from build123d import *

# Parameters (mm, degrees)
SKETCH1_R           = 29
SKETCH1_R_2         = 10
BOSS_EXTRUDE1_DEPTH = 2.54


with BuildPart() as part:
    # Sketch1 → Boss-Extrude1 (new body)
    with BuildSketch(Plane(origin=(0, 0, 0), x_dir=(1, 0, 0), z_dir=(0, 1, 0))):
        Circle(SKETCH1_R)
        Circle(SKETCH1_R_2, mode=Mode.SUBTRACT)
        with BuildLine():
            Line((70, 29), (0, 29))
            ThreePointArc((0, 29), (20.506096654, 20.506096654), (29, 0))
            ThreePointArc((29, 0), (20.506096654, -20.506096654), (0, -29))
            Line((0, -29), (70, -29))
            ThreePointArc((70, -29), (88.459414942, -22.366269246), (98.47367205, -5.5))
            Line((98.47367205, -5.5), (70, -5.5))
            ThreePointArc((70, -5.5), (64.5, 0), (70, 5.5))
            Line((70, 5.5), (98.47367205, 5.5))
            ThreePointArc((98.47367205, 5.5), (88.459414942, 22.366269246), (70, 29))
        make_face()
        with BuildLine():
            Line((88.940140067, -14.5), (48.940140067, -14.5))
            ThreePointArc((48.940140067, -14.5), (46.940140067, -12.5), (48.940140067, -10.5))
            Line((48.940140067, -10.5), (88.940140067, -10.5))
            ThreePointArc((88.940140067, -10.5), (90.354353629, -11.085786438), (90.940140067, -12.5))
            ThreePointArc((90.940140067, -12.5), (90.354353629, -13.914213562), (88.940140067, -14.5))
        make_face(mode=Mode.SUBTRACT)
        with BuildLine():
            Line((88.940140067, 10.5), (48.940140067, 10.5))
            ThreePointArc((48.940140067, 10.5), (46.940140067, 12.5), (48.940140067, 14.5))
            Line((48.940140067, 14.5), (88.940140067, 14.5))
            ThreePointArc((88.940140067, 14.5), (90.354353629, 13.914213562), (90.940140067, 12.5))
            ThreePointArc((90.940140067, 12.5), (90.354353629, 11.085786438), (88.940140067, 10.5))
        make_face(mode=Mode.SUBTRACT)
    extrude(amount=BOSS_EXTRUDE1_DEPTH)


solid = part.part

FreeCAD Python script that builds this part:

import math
import FreeCAD as App
import Part
import Sketcher
from FreeCAD import Vector
Q = App.Units.Quantity

doc = App.newDocument("Part")
body = doc.addObject("PartDesign::Body", "Body")

# Sketch on XZ plane
sketch1 = body.newObject("Sketcher::SketchObject", "Sketch")
sketch1.AttachmentSupport = (doc.getObject("XZ_Plane"), [""])
sketch1.MapMode = "FlatFace"
sketch1.addGeometry([
    Part.ArcOfCircle(Part.Circle(Vector(0, 0, 0), Vector(0, 0, 1), 29), math.radians(90), math.radians(270)),  # 0
    Part.LineSegment(Vector(0, 29, 0), Vector(70, 29, 0)),  # 1
    Part.ArcOfCircle(Part.Circle(Vector(70, 0, 0), Vector(0, 0, 1), 29), math.radians(10.932661), math.radians(90)),  # 2
    Part.LineSegment(Vector(98.473672, 5.5, 0), Vector(70, 5.5, 0)),  # 3
    Part.ArcOfCircle(Part.Circle(Vector(70, 0, 0), Vector(0, 0, 1), 5.5), math.radians(90), math.radians(270)),  # 4
    Part.LineSegment(Vector(70, -5.5, 0), Vector(98.473672, -5.5, 0)),  # 5
    Part.ArcOfCircle(Part.Circle(Vector(70, 0, 0), Vector(0, 0, 1), 29), math.radians(-90), math.radians(-10.932661)),  # 6
    Part.LineSegment(Vector(70, -29, 0), Vector(0, -29, 0)),  # 7
    Part.ArcOfCircle(Part.Circle(Vector(88.94014, 12.5, 0), Vector(0, 0, 1), 2), math.radians(0), math.radians(90)),  # 8
    Part.LineSegment(Vector(88.94014, 14.5, 0), Vector(48.94014, 14.5, 0)),  # 9
    Part.ArcOfCircle(Part.Circle(Vector(48.94014, 12.5, 0), Vector(0, 0, 1), 2), math.radians(90), math.radians(270)),  # 10
    Part.LineSegment(Vector(48.94014, 10.5, 0), Vector(88.94014, 10.5, 0)),  # 11
    Part.ArcOfCircle(Part.Circle(Vector(88.94014, 12.5, 0), Vector(0, 0, 1), 2), math.radians(-90), math.radians(0)),  # 12
    Part.Circle(Vector(0, 0, 0), Vector(0, 0, 1), 10),  # 13
    Part.ArcOfCircle(Part.Circle(Vector(88.94014, -12.5, 0), Vector(0, 0, 1), 2), math.radians(0), math.radians(90)),  # 14
    Part.LineSegment(Vector(88.94014, -10.5, 0), Vector(48.94014, -10.5, 0)),  # 15
    Part.ArcOfCircle(Part.Circle(Vector(48.94014, -12.5, 0), Vector(0, 0, 1), 2), math.radians(90), math.radians(270)),  # 16
    Part.LineSegment(Vector(48.94014, -14.5, 0), Vector(88.94014, -14.5, 0)),  # 17
    Part.ArcOfCircle(Part.Circle(Vector(88.94014, -12.5, 0), Vector(0, 0, 1), 2), math.radians(-90), math.radians(0)),  # 18
], False)
sketch1.addConstraint([
    Sketcher.Constraint("Tangent", 0, 1, 1, 1),
    Sketcher.Constraint("Tangent", 1, 2, 2, 2),
    Sketcher.Constraint("Coincident", 2, 1, 3, 1),
    Sketcher.Constraint("Tangent", 3, 2, 4, 1),
    Sketcher.Constraint("Tangent", 4, 2, 5, 1),
    Sketcher.Constraint("Coincident", 5, 2, 6, 2),
    Sketcher.Constraint("Tangent", 6, 1, 7, 1),
    Sketcher.Constraint("Tangent", 7, 2, 0, 2),
    Sketcher.Constraint("Tangent", 8, 2, 9, 1),
    Sketcher.Constraint("Tangent", 9, 2, 10, 1),
    Sketcher.Constraint("Tangent", 10, 2, 11, 1),
    Sketcher.Constraint("Tangent", 11, 2, 12, 1),
    Sketcher.Constraint("Tangent", 12, 2, 8, 1),
    Sketcher.Constraint("Tangent", 14, 2, 15, 1),
    Sketcher.Constraint("Tangent", 15, 2, 16, 1),
    Sketcher.Constraint("Tangent", 16, 2, 17, 1),
    Sketcher.Constraint("Tangent", 17, 2, 18, 1),
    Sketcher.Constraint("Tangent", 18, 2, 14, 1),
    Sketcher.Constraint("Horizontal", 1),
    Sketcher.Constraint("Horizontal", 3),
    Sketcher.Constraint("Horizontal", 5),
    Sketcher.Constraint("Horizontal", 7),
    Sketcher.Constraint("Horizontal", 9),
    Sketcher.Constraint("Horizontal", 11),
    Sketcher.Constraint("Horizontal", 15),
    Sketcher.Constraint("Horizontal", 17),
    Sketcher.Constraint("Coincident", 0, 3, -1, 1),
    Sketcher.Constraint("Coincident", 13, 3, -1, 1),
    Sketcher.Constraint("Coincident", 4, 3, 2, 3),
    Sketcher.Constraint("Coincident", 6, 3, 2, 3),
    Sketcher.Constraint("Equal", 0, 2),
    Sketcher.Constraint("Equal", 8, 10),
    Sketcher.Constraint("Equal", 12, 14),
    Sketcher.Constraint("Equal", 14, 16),
    Sketcher.Constraint("Symmetric", 8, 3, 14, 3, -1),
    Sketcher.Constraint("Horizontal", 10, 3, 12, 2),
    Sketcher.Constraint("Horizontal", 16, 3, 18, 2),
    Sketcher.Constraint("Vertical", 10, 3, 16, 3),
    Sketcher.Constraint("Diameter", 13, Q("20 mm")),
    Sketcher.Constraint("Radius", 0, Q("29 mm")),
    Sketcher.Constraint("Radius", 8, Q("2 mm")),
    Sketcher.Constraint("Radius", 4, Q("5.5 mm")),
    Sketcher.Constraint("DistanceX", 1, 1, 1, 2, Q("70 mm")),
    Sketcher.Constraint("DistanceX", 9, 2, 9, 1, Q("40 mm")),
    Sketcher.Constraint("DistanceY", 14, 3, 8, 3, Q("25 mm")),
    Sketcher.Constraint("DistanceX", -1, 1, 8, 3, Q("88.94014 mm")),
])
pad1 = body.newObject("PartDesign::Pad", "Pad")
pad1.Profile = sketch1
pad1.Length = 2.54
pad1.Reversed = True

doc.recompute()
